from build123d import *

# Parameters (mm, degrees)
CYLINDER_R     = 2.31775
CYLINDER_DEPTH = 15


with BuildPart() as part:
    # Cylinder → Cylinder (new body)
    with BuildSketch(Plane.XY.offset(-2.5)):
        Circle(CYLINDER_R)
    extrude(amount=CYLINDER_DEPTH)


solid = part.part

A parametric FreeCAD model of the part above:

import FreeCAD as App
import Part
import Sketcher

doc = App.newDocument("Part")
body = doc.addObject("PartDesign::Body", "Body")

# Sketch on XY plane
sketch1 = doc.addObject("Sketcher::SketchObject", "Sketch")
body.addObject(sketch1)
sketch1.AttachmentSupport = (doc.XY_Plane, [""])
sketch1.MapMode = "FlatFace"
sketch1.AttachmentOffset = App.Placement(App.Vector(0, 0, -2.5), App.Rotation())
sketch1.addGeometry(Part.Circle(App.Vector(0, 0, 0), App.Vector(0, 0, 1), 2.31775), False)
sketch1.addConstraint([
    Sketcher.Constraint("Coincident", 0, 3, -1, 1),
    Sketcher.Constraint("Diameter", 0, 4.6355),
])
pad1 = doc.addObject("PartDesign::Pad", "Pad")
body.addObject(pad1)
pad1.Profile = sketch1
pad1.Length = 15

doc.recompute()
